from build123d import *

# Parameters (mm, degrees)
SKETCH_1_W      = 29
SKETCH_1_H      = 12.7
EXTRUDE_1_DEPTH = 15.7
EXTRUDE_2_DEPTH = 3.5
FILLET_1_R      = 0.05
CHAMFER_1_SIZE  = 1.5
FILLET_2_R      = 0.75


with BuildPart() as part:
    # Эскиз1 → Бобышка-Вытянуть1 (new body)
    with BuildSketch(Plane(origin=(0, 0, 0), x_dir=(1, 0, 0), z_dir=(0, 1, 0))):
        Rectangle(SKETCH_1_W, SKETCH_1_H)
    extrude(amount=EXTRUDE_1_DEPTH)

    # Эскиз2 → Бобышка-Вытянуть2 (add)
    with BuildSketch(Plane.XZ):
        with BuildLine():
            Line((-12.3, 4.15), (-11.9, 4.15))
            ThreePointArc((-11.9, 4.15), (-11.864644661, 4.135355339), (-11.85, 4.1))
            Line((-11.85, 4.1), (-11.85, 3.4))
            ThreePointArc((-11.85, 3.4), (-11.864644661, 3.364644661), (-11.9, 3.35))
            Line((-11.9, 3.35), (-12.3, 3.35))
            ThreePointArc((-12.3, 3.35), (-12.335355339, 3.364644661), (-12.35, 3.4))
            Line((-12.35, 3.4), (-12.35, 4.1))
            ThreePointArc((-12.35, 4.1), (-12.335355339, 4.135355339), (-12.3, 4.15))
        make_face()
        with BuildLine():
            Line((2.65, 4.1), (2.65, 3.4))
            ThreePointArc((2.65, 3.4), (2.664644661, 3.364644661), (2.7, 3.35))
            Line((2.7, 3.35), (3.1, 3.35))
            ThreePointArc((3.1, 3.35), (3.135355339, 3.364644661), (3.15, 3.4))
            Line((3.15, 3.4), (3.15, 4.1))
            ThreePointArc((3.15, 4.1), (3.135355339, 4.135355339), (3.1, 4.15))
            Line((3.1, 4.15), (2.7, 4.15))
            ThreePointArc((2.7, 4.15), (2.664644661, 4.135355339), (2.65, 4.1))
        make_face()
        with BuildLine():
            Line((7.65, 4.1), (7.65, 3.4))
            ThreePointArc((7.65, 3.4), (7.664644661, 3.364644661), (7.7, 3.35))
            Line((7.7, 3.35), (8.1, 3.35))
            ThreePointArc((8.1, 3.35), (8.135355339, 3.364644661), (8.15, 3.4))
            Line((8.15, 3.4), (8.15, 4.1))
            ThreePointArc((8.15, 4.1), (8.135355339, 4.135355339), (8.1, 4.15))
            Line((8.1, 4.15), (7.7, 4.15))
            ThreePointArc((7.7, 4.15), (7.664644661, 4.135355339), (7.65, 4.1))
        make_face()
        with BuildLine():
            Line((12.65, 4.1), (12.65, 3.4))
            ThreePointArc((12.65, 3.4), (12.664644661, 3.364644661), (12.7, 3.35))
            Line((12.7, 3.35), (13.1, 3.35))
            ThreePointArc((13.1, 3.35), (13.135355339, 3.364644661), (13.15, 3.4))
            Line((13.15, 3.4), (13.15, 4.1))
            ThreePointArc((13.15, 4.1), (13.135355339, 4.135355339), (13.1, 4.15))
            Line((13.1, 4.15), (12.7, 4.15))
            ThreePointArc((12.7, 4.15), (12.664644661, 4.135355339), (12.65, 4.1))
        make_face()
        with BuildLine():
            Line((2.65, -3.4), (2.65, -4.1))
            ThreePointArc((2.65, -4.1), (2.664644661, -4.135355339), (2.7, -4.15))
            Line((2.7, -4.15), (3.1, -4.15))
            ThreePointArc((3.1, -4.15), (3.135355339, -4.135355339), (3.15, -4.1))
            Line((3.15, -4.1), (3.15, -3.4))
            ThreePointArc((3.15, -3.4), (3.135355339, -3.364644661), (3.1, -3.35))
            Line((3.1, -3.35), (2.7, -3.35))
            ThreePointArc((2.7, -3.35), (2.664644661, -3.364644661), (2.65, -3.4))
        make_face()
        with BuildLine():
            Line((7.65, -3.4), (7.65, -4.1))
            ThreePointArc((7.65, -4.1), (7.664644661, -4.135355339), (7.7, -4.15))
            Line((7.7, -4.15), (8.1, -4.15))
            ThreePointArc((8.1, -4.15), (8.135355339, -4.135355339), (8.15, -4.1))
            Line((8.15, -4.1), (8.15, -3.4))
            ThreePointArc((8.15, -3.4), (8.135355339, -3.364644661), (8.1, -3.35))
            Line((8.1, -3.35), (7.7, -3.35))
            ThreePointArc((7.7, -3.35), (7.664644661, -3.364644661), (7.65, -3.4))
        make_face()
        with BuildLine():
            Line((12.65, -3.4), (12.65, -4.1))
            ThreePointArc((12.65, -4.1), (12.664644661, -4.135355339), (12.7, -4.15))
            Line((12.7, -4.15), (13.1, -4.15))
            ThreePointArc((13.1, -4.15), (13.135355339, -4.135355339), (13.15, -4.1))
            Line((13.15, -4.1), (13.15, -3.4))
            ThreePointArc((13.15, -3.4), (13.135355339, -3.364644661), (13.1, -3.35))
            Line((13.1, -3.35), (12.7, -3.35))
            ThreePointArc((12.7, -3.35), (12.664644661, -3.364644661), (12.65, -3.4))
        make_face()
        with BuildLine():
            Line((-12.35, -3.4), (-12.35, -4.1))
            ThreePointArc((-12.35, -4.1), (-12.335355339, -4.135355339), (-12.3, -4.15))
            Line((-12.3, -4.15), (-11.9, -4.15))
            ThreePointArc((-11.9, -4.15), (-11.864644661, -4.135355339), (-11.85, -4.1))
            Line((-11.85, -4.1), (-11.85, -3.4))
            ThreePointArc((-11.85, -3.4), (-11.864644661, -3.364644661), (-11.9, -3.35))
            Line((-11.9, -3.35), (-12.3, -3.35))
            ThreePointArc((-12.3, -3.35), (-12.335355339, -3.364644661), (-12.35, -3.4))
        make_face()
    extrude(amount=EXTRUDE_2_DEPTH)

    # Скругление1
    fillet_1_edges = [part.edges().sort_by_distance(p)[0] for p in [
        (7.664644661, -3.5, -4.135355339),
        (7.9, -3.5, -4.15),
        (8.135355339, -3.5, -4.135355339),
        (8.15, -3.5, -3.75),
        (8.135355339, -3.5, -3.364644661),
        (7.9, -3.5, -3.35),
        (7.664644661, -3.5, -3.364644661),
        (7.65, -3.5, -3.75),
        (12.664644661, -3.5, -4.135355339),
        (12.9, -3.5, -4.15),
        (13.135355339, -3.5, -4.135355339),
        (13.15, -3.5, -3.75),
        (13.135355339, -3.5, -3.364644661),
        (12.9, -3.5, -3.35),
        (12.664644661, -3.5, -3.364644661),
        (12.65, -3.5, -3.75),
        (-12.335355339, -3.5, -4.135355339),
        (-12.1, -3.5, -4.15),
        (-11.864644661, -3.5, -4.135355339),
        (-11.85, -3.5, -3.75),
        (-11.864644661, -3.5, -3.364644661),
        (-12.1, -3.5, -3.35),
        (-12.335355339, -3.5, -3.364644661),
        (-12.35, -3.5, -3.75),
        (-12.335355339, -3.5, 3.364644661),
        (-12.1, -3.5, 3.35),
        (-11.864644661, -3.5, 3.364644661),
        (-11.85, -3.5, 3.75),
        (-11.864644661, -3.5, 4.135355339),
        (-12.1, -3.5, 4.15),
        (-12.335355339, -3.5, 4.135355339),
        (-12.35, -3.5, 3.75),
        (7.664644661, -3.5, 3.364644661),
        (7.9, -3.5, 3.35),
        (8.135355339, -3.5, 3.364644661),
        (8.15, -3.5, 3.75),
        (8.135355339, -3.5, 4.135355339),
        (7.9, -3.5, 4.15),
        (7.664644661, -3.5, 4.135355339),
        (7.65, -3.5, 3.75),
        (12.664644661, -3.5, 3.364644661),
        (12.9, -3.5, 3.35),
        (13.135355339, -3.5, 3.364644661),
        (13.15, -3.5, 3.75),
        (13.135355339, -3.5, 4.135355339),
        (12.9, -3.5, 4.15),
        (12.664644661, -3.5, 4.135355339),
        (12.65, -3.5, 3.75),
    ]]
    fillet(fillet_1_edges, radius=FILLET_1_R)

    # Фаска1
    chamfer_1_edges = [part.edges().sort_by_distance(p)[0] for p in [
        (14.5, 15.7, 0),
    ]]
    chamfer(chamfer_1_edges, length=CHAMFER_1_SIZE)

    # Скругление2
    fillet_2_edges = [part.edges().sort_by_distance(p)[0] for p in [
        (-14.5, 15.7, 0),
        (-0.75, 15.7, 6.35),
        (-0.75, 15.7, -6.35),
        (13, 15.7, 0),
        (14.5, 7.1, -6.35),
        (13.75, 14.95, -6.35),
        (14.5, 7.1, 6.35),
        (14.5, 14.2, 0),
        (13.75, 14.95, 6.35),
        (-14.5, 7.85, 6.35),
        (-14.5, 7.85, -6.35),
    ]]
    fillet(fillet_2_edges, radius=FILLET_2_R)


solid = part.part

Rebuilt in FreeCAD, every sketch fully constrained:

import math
import FreeCAD as App
import Part
import Sketcher
Q = App.Units.Quantity


def edges_at(feature, points):
    """Names of the edges that pass closest to the given points."""
    edges = feature.Shape.Edges
    near = lambda p: min(range(len(edges)), key=lambda i: edges[i].distToShape(Part.Vertex(*p))[0])
    return sorted({f"Edge{near(p) + 1}" for p in points})


def add_polygon(sketch, points):
    """Adds a closed chain of lines whose ends are joined by coincident constraints."""
    first, n = sketch.GeometryCount, len(points)
    for a, b in zip(points, points[1:] + points[:1]):
        sketch.addGeometry(Part.LineSegment(App.Vector(*a, 0), App.Vector(*b, 0)), False)
    for i in range(n):
        sketch.addConstraint(Sketcher.Constraint("Coincident", first + i, 2, first + (i + 1) % n, 1))

doc = App.newDocument("Part")
body = doc.addObject("PartDesign::Body", "Body")

sketch1 = body.newObject("Sketcher::SketchObject", "Sketch")
sketch1.AttachmentSupport = (doc.getObject("XZ_Plane"), [""])
sketch1.MapMode = "FlatFace"
add_polygon(sketch1, [(-14.5, -6.35), (-14.5, 6.35), (14.5, 6.35), (14.5, -6.35)])
sketch1.addConstraint([
    Sketcher.Constraint("Vertical", 0),
    Sketcher.Constraint("Horizontal", 1),
    Sketcher.Constraint("Vertical", 2),
    Sketcher.Constraint("Horizontal", 3),
    Sketcher.Constraint("Symmetric", 0, 2, 2, 2, -1, 1),
    Sketcher.Constraint("DistanceX", 1, 1, 1, 2, Q("29 mm")),
    Sketcher.Constraint("DistanceY", 0, 1, 0, 2, Q("12.7 mm")),
])
pad1 = body.newObject("PartDesign::Pad", "Pad")
pad1.Profile = sketch1
pad1.Length = 15.7
pad1.Reversed = True

sketch2 = body.newObject("Sketcher::SketchObject", "Sketch001")
sketch2.AttachmentSupport = (doc.getObject("XZ_Plane"), [""])
sketch2.MapMode = "FlatFace"
sketch2.addGeometry([
    Part.LineSegment(App.Vector(-11.9, 4.15, 0), App.Vector(-12.3, 4.15, 0)),
    Part.ArcOfCircle(Part.Circle(App.Vector(-12.3, 4.1, 0), App.Vector(0, 0, 1), 0.05), math.radians(90), math.radians(180)),
    Part.LineSegment(App.Vector(-12.35, 4.1, 0), App.Vector(-12.35, 3.4, 0)),
    Part.ArcOfCircle(Part.Circle(App.Vector(-12.3, 3.4, 0), App.Vector(0, 0, 1), 0.05), math.radians(180), math.radians(270)),
    Part.LineSegment(App.Vector(-12.3, 3.35, 0), App.Vector(-11.9, 3.35, 0)),
    Part.ArcOfCircle(Part.Circle(App.Vector(-11.9, 3.4, 0), App.Vector(0, 0, 1), 0.05), math.radians(-90), math.radians(0)),
    Part.LineSegment(App.Vector(-11.85, 3.4, 0), App.Vector(-11.85, 4.1, 0)),
    Part.ArcOfCircle(Part.Circle(App.Vector(-11.9, 4.1, 0), App.Vector(0, 0, 1), 0.05), math.radians(0), math.radians(90)),
    Part.LineSegment(App.Vector(2.65, 4.1, 0), App.Vector(2.65, 3.4, 0)),
    Part.ArcOfCircle(Part.Circle(App.Vector(2.7, 3.4, 0), App.Vector(0, 0, 1), 0.05), math.radians(180), math.radians(270)),
    Part.LineSegment(App.Vector(2.7, 3.35, 0), App.Vector(3.1, 3.35, 0)),
    Part.ArcOfCircle(Part.Circle(App.Vector(3.1, 3.4, 0), App.Vector(0, 0, 1), 0.05), math.radians(-90), math.radians(0)),
    Part.LineSegment(App.Vector(3.15, 3.4, 0), App.Vector(3.15, 4.1, 0)),
    Part.ArcOfCircle(Part.Circle(App.Vector(3.1, 4.1, 0), App.Vector(0, 0, 1), 0.05), math.radians(0), math.radians(90)),
    Part.LineSegment(App.Vector(3.1, 4.15, 0), App.Vector(2.7, 4.15, 0)),
    Part.ArcOfCircle(Part.Circle(App.Vector(2.7, 4.1, 0), App.Vector(0, 0, 1), 0.05), math.radians(90), math.radians(180)),
    Part.LineSegment(App.Vector(7.65, 4.1, 0), App.Vector(7.65, 3.4, 0)),
    Part.ArcOfCircle(Part.Circle(App.Vector(7.7, 3.4, 0), App.Vector(0, 0, 1), 0.05), math.radians(180), math.radians(270)),
    Part.LineSegment(App.Vector(7.7, 3.35, 0), App.Vector(8.1, 3.35, 0)),
    Part.ArcOfCircle(Part.Circle(App.Vector(8.1, 3.4, 0), App.Vector(0, 0, 1), 0.05), math.radians(-90), math.radians(0)),
    Part.LineSegment(App.Vector(8.15, 3.4, 0), App.Vector(8.15, 4.1, 0)),
    Part.ArcOfCircle(Part.Circle(App.Vector(8.1, 4.1, 0), App.Vector(0, 0, 1), 0.05), math.radians(0), math.radians(90)),
    Part.LineSegment(App.Vector(8.1, 4.15, 0), App.Vector(7.7, 4.15, 0)),
    Part.ArcOfCircle(Part.Circle(App.Vector(7.7, 4.1, 0), App.Vector(0, 0, 1), 0.05), math.radians(90), math.radians(180)),
    Part.LineSegment(App.Vector(12.65, 4.1, 0), App.Vector(12.65, 3.4, 0)),
    Part.ArcOfCircle(Part.Circle(App.Vector(12.7, 3.4, 0), App.Vector(0, 0, 1), 0.05), math.radians(180), math.radians(270)),
    Part.LineSegment(App.Vector(12.7, 3.35, 0), App.Vector(13.1, 3.35, 0)),
    Part.ArcOfCircle(Part.Circle(App.Vector(13.1, 3.4, 0), App.Vector(0, 0, 1), 0.05), math.radians(-90), math.radians(0)),
    Part.LineSegment(App.Vector(13.15, 3.4, 0), App.Vector(13.15, 4.1, 0)),
    Part.ArcOfCircle(Part.Circle(App.Vector(13.1, 4.1, 0), App.Vector(0, 0, 1), 0.05), math.radians(0), math.radians(90)),
    Part.LineSegment(App.Vector(13.1, 4.15, 0), App.Vector(12.7, 4.15, 0)),
    Part.ArcOfCircle(Part.Circle(App.Vector(12.7, 4.1, 0), App.Vector(0, 0, 1), 0.05), math.radians(90), math.radians(180)),
    Part.LineSegment(App.Vector(2.65, -3.4, 0), App.Vector(2.65, -4.1, 0)),
    Part.ArcOfCircle(Part.Circle(App.Vector(2.7, -4.1, 0), App.Vector(0, 0, 1), 0.05), math.radians(180), math.radians(270)),
    Part.LineSegment(App.Vector(2.7, -4.15, 0), App.Vector(3.1, -4.15, 0)),
    Part.ArcOfCircle(Part.Circle(App.Vector(3.1, -4.1, 0), App.Vector(0, 0, 1), 0.05), math.radians(-90), math.radians(0)),
    Part.LineSegment(App.Vector(3.15, -4.1, 0), App.Vector(3.15, -3.4, 0)),
    Part.ArcOfCircle(Part.Circle(App.Vector(3.1, -3.4, 0), App.Vector(0, 0, 1), 0.05), math.radians(0), math.radians(90)),
    Part.LineSegment(App.Vector(3.1, -3.35, 0), App.Vector(2.7, -3.35, 0)),
    Part.ArcOfCircle(Part.Circle(App.Vector(2.7, -3.4, 0), App.Vector(0, 0, 1), 0.05), math.radians(90), math.radians(180)),
    Part.LineSegment(App.Vector(7.65, -3.4, 0), App.Vector(7.65, -4.1, 0)),
    Part.ArcOfCircle(Part.Circle(App.Vector(7.7, -4.1, 0), App.Vector(0, 0, 1), 0.05), math.radians(180), math.radians(270)),
    Part.LineSegment(App.Vector(7.7, -4.15, 0), App.Vector(8.1, -4.15, 0)),
    Part.ArcOfCircle(Part.Circle(App.Vector(8.1, -4.1, 0), App.Vector(0, 0, 1), 0.05), math.radians(-90), math.radians(0)),
    Part.LineSegment(App.Vector(8.15, -4.1, 0), App.Vector(8.15, -3.4, 0)),
    Part.ArcOfCircle(Part.Circle(App.Vector(8.1, -3.4, 0), App.Vector(0, 0, 1), 0.05), math.radians(0), math.radians(90)),
    Part.LineSegment(App.Vector(8.1, -3.35, 0), App.Vector(7.7, -3.35, 0)),
    Part.ArcOfCircle(Part.Circle(App.Vector(7.7, -3.4, 0), App.Vector(0, 0, 1), 0.05), math.radians(90), math.radians(180)),
    Part.LineSegment(App.Vector(12.65, -3.4, 0), App.Vector(12.65, -4.1, 0)),
    Part.ArcOfCircle(Part.Circle(App.Vector(12.7, -4.1, 0), App.Vector(0, 0, 1), 0.05), math.radians(180), math.radians(270)),
    Part.LineSegment(App.Vector(12.7, -4.15, 0), App.Vector(13.1, -4.15, 0)),
    Part.ArcOfCircle(Part.Circle(App.Vector(13.1, -4.1, 0), App.Vector(0, 0, 1), 0.05), math.radians(-90), math.radians(0)),
    Part.LineSegment(App.Vector(13.15, -4.1, 0), App.Vector(13.15, -3.4, 0)),
    Part.ArcOfCircle(Part.Circle(App.Vector(13.1, -3.4, 0), App.Vector(0, 0, 1), 0.05), math.radians(0), math.radians(90)),
    Part.LineSegment(App.Vector(13.1, -3.35, 0), App.Vector(12.7, -3.35, 0)),
    Part.ArcOfCircle(Part.Circle(App.Vector(12.7, -3.4, 0), App.Vector(0, 0, 1), 0.05), math.radians(90), math.radians(180)),
    Part.LineSegment(App.Vector(-12.35, -3.4, 0), App.Vector(-12.35, -4.1, 0)),
    Part.ArcOfCircle(Part.Circle(App.Vector(-12.3, -4.1, 0), App.Vector(0, 0, 1), 0.05), math.radians(180), math.radians(270)),
    Part.LineSegment(App.Vector(-12.3, -4.15, 0), App.Vector(-11.9, -4.15, 0)),
    Part.ArcOfCircle(Part.Circle(App.Vector(-11.9, -4.1, 0), App.Vector(0, 0, 1), 0.05), math.radians(-90), math.radians(0)),
    Part.LineSegment(App.Vector(-11.85, -4.1, 0), App.Vector(-11.85, -3.4, 0)),
    Part.ArcOfCircle(Part.Circle(App.Vector(-11.9, -3.4, 0), App.Vector(0, 0, 1), 0.05), math.radians(0), math.radians(90)),
    Part.LineSegment(App.Vector(-11.9, -3.35, 0), App.Vector(-12.3, -3.35, 0)),
    Part.ArcOfCircle(Part.Circle(App.Vector(-12.3, -3.4, 0), App.Vector(0, 0, 1), 0.05), math.radians(90), math.radians(180)),
], False)
sketch2.addConstraint([
    Sketcher.Constraint("Tangent", 0, 2, 1, 1),
    Sketcher.Constraint("Tangent", 1, 2, 2, 1),
    Sketcher.Constraint("Tangent", 2, 2, 3, 1),
    Sketcher.Constraint("Tangent", 3, 2, 4, 1),
    Sketcher.Constraint("Tangent", 4, 2, 5, 1),
    Sketcher.Constraint("Tangent", 5, 2, 6, 1),
    Sketcher.Constraint("Tangent", 6, 2, 7, 1),
    Sketcher.Constraint("Tangent", 7, 2, 0, 1),
    Sketcher.Constraint("Tangent", 8, 2, 9, 1),
    Sketcher.Constraint("Tangent", 9, 2, 10, 1),
    Sketcher.Constraint("Tangent", 10, 2, 11, 1),
    Sketcher.Constraint("Tangent", 11, 2, 12, 1),
    Sketcher.Constraint("Tangent", 12, 2, 13, 1),
    Sketcher.Constraint("Tangent", 13, 2, 14, 1),
    Sketcher.Constraint("Tangent", 14, 2, 15, 1),
    Sketcher.Constraint("Tangent", 15, 2, 8, 1),
    Sketcher.Constraint("Tangent", 16, 2, 17, 1),
    Sketcher.Constraint("Tangent", 17, 2, 18, 1),
    Sketcher.Constraint("Tangent", 18, 2, 19, 1),
    Sketcher.Constraint("Tangent", 19, 2, 20, 1),
    Sketcher.Constraint("Tangent", 20, 2, 21, 1),
    Sketcher.Constraint("Tangent", 21, 2, 22, 1),
    Sketcher.Constraint("Tangent", 22, 2, 23, 1),
    Sketcher.Constraint("Tangent", 23, 2, 16, 1),
    Sketcher.Constraint("Tangent", 24, 2, 25, 1),
    Sketcher.Constraint("Tangent", 25, 2, 26, 1),
    Sketcher.Constraint("Tangent", 26, 2, 27, 1),
    Sketcher.Constraint("Tangent", 27, 2, 28, 1),
    Sketcher.Constraint("Tangent", 28, 2, 29, 1),
    Sketcher.Constraint("Tangent", 29, 2, 30, 1),
    Sketcher.Constraint("Tangent", 30, 2, 31, 1),
    Sketcher.Constraint("Tangent", 31, 2, 24, 1),
    Sketcher.Constraint("Tangent", 32, 2, 33, 1),
    Sketcher.Constraint("Tangent", 33, 2, 34, 1),
    Sketcher.Constraint("Tangent", 34, 2, 35, 1),
    Sketcher.Constraint("Tangent", 35, 2, 36, 1),
    Sketcher.Constraint("Tangent", 36, 2, 37, 1),
    Sketcher.Constraint("Tangent", 37, 2, 38, 1),
    Sketcher.Constraint("Tangent", 38, 2, 39, 1),
    Sketcher.Constraint("Tangent", 39, 2, 32, 1),
    Sketcher.Constraint("Tangent", 40, 2, 41, 1),
    Sketcher.Constraint("Tangent", 41, 2, 42, 1),
    Sketcher.Constraint("Tangent", 42, 2, 43, 1),
    Sketcher.Constraint("Tangent", 43, 2, 44, 1),
    Sketcher.Constraint("Tangent", 44, 2, 45, 1),
    Sketcher.Constraint("Tangent", 45, 2, 46, 1),
    Sketcher.Constraint("Tangent", 46, 2, 47, 1),
    Sketcher.Constraint("Tangent", 47, 2, 40, 1),
    Sketcher.Constraint("Tangent", 48, 2, 49, 1),
    Sketcher.Constraint("Tangent", 49, 2, 50, 1),
    Sketcher.Constraint("Tangent", 50, 2, 51, 1),
    Sketcher.Constraint("Tangent", 51, 2, 52, 1),
    Sketcher.Constraint("Tangent", 52, 2, 53, 1),
    Sketcher.Constraint("Tangent", 53, 2, 54, 1),
    Sketcher.Constraint("Tangent", 54, 2, 55, 1),
    Sketcher.Constraint("Tangent", 55, 2, 48, 1),
    Sketcher.Constraint("Tangent", 56, 2, 57, 1),
    Sketcher.Constraint("Tangent", 57, 2, 58, 1),
    Sketcher.Constraint("Tangent", 58, 2, 59, 1),
    Sketcher.Constraint("Tangent", 59, 2, 60, 1),
    Sketcher.Constraint("Tangent", 60, 2, 61, 1),
    Sketcher.Constraint("Tangent", 61, 2, 62, 1),
    Sketcher.Constraint("Tangent", 62, 2, 63, 1),
    Sketcher.Constraint("Tangent", 63, 2, 56, 1),
    Sketcher.Constraint("Horizontal", 0),
    Sketcher.Constraint("Vertical", 2),
    Sketcher.Constraint("Horizontal", 4),
    Sketcher.Constraint("Vertical", 6),
    Sketcher.Constraint("Vertical", 8),
    Sketcher.Constraint("Horizontal", 10),
    Sketcher.Constraint("Vertical", 12),
    Sketcher.Constraint("Horizontal", 14),
    Sketcher.Constraint("Vertical", 16),
    Sketcher.Constraint("Horizontal", 18),
    Sketcher.Constraint("Vertical", 20),
    Sketcher.Constraint("Horizontal", 22),
    Sketcher.Constraint("Vertical", 24),
    Sketcher.Constraint("Horizontal", 26),
    Sketcher.Constraint("Vertical", 28),
    Sketcher.Constraint("Horizontal", 30),
    Sketcher.Constraint("Vertical", 32),
    Sketcher.Constraint("Horizontal", 34),
    Sketcher.Constraint("Vertical", 36),
    Sketcher.Constraint("Horizontal", 38),
    Sketcher.Constraint("Vertical", 40),
    Sketcher.Constraint("Horizontal", 42),
    Sketcher.Constraint("Vertical", 44),
    Sketcher.Constraint("Horizontal", 46),
    Sketcher.Constraint("Vertical", 48),
    Sketcher.Constraint("Horizontal", 50),
    Sketcher.Constraint("Vertical", 52),
    Sketcher.Constraint("Horizontal", 54),
    Sketcher.Constraint("Vertical", 56),
    Sketcher.Constraint("Horizontal", 58),
    Sketcher.Constraint("Vertical", 60),
    Sketcher.Constraint("Horizontal", 62),
    Sketcher.Constraint("Equal", 1, 3),
    Sketcher.Constraint("Equal", 3, 5),
    Sketcher.Constraint("Equal", 5, 7),
    Sketcher.Constraint("Equal", 7, 9),
    Sketcher.Constraint("Equal", 9, 11),
    Sketcher.Constraint("Equal", 11, 13),
    Sketcher.Constraint("Equal", 13, 15),
    Sketcher.Constraint("Equal", 15, 17),
    Sketcher.Constraint("Equal", 17, 19),
    Sketcher.Constraint("Equal", 19, 21),
    Sketcher.Constraint("Equal", 21, 23),
    Sketcher.Constraint("Equal", 23, 25),
    Sketcher.Constraint("Equal", 25, 27),
    Sketcher.Constraint("Equal", 27, 29),
    Sketcher.Constraint("Equal", 29, 31),
    Sketcher.Constraint("Equal", 31, 33),
    Sketcher.Constraint("Equal", 33, 35),
    Sketcher.Constraint("Equal", 35, 37),
    Sketcher.Constraint("Equal", 37, 39),
    Sketcher.Constraint("Equal", 39, 41),
    Sketcher.Constraint("Equal", 41, 43),
    Sketcher.Constraint("Equal", 43, 45),
    Sketcher.Constraint("Equal", 45, 47),
    Sketcher.Constraint("Equal", 47, 49),
    Sketcher.Constraint("Equal", 49, 51),
    Sketcher.Constraint("Equal", 51, 53),
    Sketcher.Constraint("Equal", 53, 55),
    Sketcher.Constraint("Equal", 55, 57),
    Sketcher.Constraint("Equal", 57, 59),
    Sketcher.Constraint("Equal", 59, 61),
    Sketcher.Constraint("Equal", 61, 63),
    Sketcher.Constraint("Symmetric", 15, 3, 33, 3, -1),
    Sketcher.Constraint("Symmetric", 11, 3, 37, 3, -1),
    Sketcher.Constraint("Symmetric", 23, 3, 41, 3, -1),
    Sketcher.Constraint("Symmetric", 19, 3, 45, 3, -1),
    Sketcher.Constraint("Symmetric", 31, 3, 49, 3, -1),
    Sketcher.Constraint("Symmetric", 27, 3, 53, 3, -1),
    Sketcher.Constraint("Symmetric", 1, 3, 57, 3, -1),
    Sketcher.Constraint("Symmetric", 5, 3, 61, 3, -1),
    Sketcher.Constraint("Horizontal", 5, 3, 9, 3),
    Sketcher.Constraint("Horizontal", 7, 3, 13, 3),
    Sketcher.Constraint("Horizontal", 11, 3, 17, 3),
    Sketcher.Constraint("Horizontal", 15, 3, 21, 3),
    Sketcher.Constraint("Horizontal", 19, 3, 25, 3),
    Sketcher.Constraint("Horizontal", 23, 3, 29, 3),
    Sketcher.Constraint("Equal", 4, 10),
    Sketcher.Constraint("Equal", 14, 18),
    Sketcher.Constraint("Equal", 22, 26),
    Sketcher.Constraint("Radius", 1, Q("0.05 mm")),
    Sketcher.Constraint("DistanceX", 0, 2, 0, 1, Q("0.4 mm")),
    Sketcher.Constraint("DistanceY", 2, 2, 2, 1, Q("0.7 mm")),
    Sketcher.Constraint("DistanceX", 1, 3, -1, 1, Q("12.3 mm")),
    Sketcher.Constraint("DistanceY", -1, 1, 1, 3, Q("4.1 mm")),
    Sketcher.Constraint("DistanceX", -1, 1, 9, 3, Q("2.7 mm")),
    Sketcher.Constraint("DistanceX", -1, 1, 17, 3, Q("7.7 mm")),
    Sketcher.Constraint("DistanceX", -1, 1, 25, 3, Q("12.7 mm")),
])
pad2 = body.newObject("PartDesign::Pad", "Pad001")
pad2.Profile = sketch2
pad2.Length = 3.5
doc.recompute()

fillet = body.newObject("PartDesign::Fillet", "Fillet")
fillet.Base = (pad2, edges_at(pad2, [
    (7.665, -3.5, -4.135),
    (7.9, -3.5, -4.15),
    (8.135, -3.5, -4.135),
    (8.15, -3.5, -3.75),
    (8.135, -3.5, -3.365),
    (7.9, -3.5, -3.35),
    (7.665, -3.5, -3.365),
    (7.65, -3.5, -3.75),
    (12.665, -3.5, -4.135),
    (12.9, -3.5, -4.15),
    (13.135, -3.5, -4.135),
    (13.15, -3.5, -3.75),
    (13.135, -3.5, -3.365),
    (12.9, -3.5, -3.35),
    (12.665, -3.5, -3.365),
    (12.65, -3.5, -3.75),
    (-12.335, -3.5, -4.135),
    (-12.1, -3.5, -4.15),
    (-11.865, -3.5, -4.135),
    (-11.85, -3.5, -3.75),
    (-11.865, -3.5, -3.365),
    (-12.1, -3.5, -3.35),
    (-12.335, -3.5, -3.365),
    (-12.35, -3.5, -3.75),
    (-12.335, -3.5, 3.365),
    (-12.1, -3.5, 3.35),
    (-11.865, -3.5, 3.365),
    (-11.85, -3.5, 3.75),
    (-11.865, -3.5, 4.135),
    (-12.1, -3.5, 4.15),
    (-12.335, -3.5, 4.135),
    (-12.35, -3.5, 3.75),
    (7.665, -3.5, 3.365),
    (7.9, -3.5, 3.35),
    (8.135, -3.5, 3.365),
    (8.15, -3.5, 3.75),
    (8.135, -3.5, 4.135),
    (7.9, -3.5, 4.15),
    (7.665, -3.5, 4.135),
    (7.65, -3.5, 3.75),
    (12.665, -3.5, 3.365),
    (12.9, -3.5, 3.35),
    (13.135, -3.5, 3.365),
    (13.15, -3.5, 3.75),
    (13.135, -3.5, 4.135),
    (12.9, -3.5, 4.15),
    (12.665, -3.5, 4.135),
    (12.65, -3.5, 3.75),
]))
fillet.Radius = 0.05
doc.recompute()

chamfer = body.newObject("PartDesign::Chamfer", "Chamfer")
chamfer.Base = (fillet, edges_at(fillet, [(14.5, 15.7, 0)]))
chamfer.Size = 1.5
doc.recompute()

fillet2 = body.newObject("PartDesign::Fillet", "Fillet001")
fillet2.Base = (chamfer, edges_at(chamfer, [
    (-14.5, 15.7, 0),
    (-0.75, 15.7, 6.35),
    (-0.75, 15.7, -6.35),
    (13, 15.7, 0),
    (14.5, 7.1, -6.35),
    (13.75, 14.95, -6.35),
    (14.5, 7.1, 6.35),
    (14.5, 14.2, 0),
    (13.75, 14.95, 6.35),
    (-14.5, 7.85, 6.35),
    (-14.5, 7.85, -6.35),
]))
fillet2.Radius = 0.75

doc.recompute()
